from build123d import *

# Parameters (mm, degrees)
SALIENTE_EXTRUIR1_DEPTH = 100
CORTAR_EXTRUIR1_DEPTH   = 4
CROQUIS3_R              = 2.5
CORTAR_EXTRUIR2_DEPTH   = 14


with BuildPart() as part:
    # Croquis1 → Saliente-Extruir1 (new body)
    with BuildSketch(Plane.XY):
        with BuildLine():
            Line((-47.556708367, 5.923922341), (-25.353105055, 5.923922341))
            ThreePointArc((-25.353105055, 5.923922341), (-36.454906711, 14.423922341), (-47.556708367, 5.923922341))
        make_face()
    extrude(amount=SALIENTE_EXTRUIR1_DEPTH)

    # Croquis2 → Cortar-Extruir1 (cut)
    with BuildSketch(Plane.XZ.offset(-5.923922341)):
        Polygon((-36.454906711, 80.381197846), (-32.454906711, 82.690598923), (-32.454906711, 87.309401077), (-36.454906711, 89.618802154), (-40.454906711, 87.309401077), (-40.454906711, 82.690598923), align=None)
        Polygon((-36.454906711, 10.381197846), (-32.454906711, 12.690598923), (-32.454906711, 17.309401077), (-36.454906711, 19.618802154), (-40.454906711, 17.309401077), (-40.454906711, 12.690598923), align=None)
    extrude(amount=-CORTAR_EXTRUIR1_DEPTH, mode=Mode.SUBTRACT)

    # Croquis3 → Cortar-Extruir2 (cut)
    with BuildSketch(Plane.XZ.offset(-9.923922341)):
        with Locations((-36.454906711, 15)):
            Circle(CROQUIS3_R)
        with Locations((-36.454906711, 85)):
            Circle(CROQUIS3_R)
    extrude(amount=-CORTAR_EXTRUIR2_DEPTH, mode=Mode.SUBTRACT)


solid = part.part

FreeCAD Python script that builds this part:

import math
import FreeCAD as App
import Part
import Sketcher
from FreeCAD import Vector
Q = App.Units.Quantity


def add_polygon(sketch, points):
    """Adds a closed chain of lines whose ends are joined by coincident constraints."""
    first, n = sketch.GeometryCount, len(points)
    for a, b in zip(points, points[1:] + points[:1]):
        sketch.addGeometry(Part.LineSegment(App.Vector(*a, 0), App.Vector(*b, 0)), False)
    for i in range(n):
        sketch.addConstraint(Sketcher.Constraint("Coincident", first + i, 2, first + (i + 1) % n, 1))

doc = App.newDocument("Part")
params = doc.addObject("Spreadsheet::Sheet", "Params")
for row, (alias, value) in enumerate([
    ("sketch1_radius", "11.5 mm"),
    ("pad1_length", "100 mm"),
    ("pocket1_length", "4 mm"),
    ("sketch3_diameter", "5 mm"),
    ("pocket2_length", "14 mm"),
], start=1):
    params.set(f"A{row}", alias)
    params.set(f"B{row}", "=" + value)
    params.setAlias(f"B{row}", alias)

body = doc.addObject("PartDesign::Body", "Body")

# Sketch on XY plane
sketch1 = doc.addObject("Sketcher::SketchObject", "Sketch")
body.addObject(sketch1)
sketch1.AttachmentSupport = (doc.XY_Plane, [""])
sketch1.MapMode = "FlatFace"
sketch1.addGeometry([
    Part.LineSegment(Vector(-48, 6, 0), Vector(-25, 6, 0)),
    Part.ArcOfCircle(Part.Circle(Vector(-36, 3, 0), Vector(0, 0, 1), 12), math.radians(15), math.radians(165)),
], False)
sketch1.addConstraint([
    Sketcher.Constraint("Coincident", 0, 1, 1, 2),
    Sketcher.Constraint("Coincident", 1, 1, 0, 2),
    Sketcher.Constraint("Horizontal", 0),
    Sketcher.Constraint("Radius", 1, Q("11.5 mm")),
    Sketcher.Constraint("DistanceY", 1, 3, 0, 1, Q("3 mm")),
    Sketcher.Constraint("DistanceX", 0, 1, -1, 1, Q("47.556708 mm")),
    Sketcher.Constraint("DistanceY", -1, 1, 1, 3, Q("2.923922 mm")),
])
sketch1.setExpression("Constraints[3]", "Params.sketch1_radius")
pad1 = doc.addObject("PartDesign::Pad", "Pad")
body.addObject(pad1)
pad1.Profile = sketch1
pad1.setExpression("Length", "Params.pad1_length")

# Sketch on XZ plane
sketch2 = doc.addObject("Sketcher::SketchObject", "Sketch001")
body.addObject(sketch2)
sketch2.AttachmentSupport = (doc.XZ_Plane, [""])
sketch2.MapMode = "FlatFace"
sketch2.AttachmentOffset = App.Placement(Vector(0, 0, -5.923922), App.Rotation())
add_polygon(sketch2, [(-36.5, 80.4), (-32.5, 82.7), (-32.5, 87.3), (-36.5, 89.6), (-40.5, 87.3), (-40.5, 82.7)])  # lines 0-5
add_polygon(sketch2, [(-36.5, 10.4), (-32.5, 12.7), (-32.5, 17.3), (-36.5, 19.6), (-40.5, 17.3), (-40.5, 12.7)])  # lines 6-11
sketch2.addConstraint([
    Sketcher.Constraint("Vertical", 1),
    Sketcher.Constraint("Vertical", 4),
    Sketcher.Constraint("Vertical", 7),
    Sketcher.Constraint("Vertical", 10),
    Sketcher.Constraint("Parallel", 0, 3),
    Sketcher.Constraint("Parallel", 2, 5),
    Sketcher.Constraint("Parallel", 3, 6),
    Sketcher.Constraint("Parallel", 5, 8),
    Sketcher.Constraint("Parallel", 6, 9),
    Sketcher.Constraint("Parallel", 8, 11),
    Sketcher.Constraint("Horizontal", 1, 2, 3, 2),
    Sketcher.Constraint("Horizontal", 0, 2, 4, 2),
    Sketcher.Constraint("Horizontal", 7, 2, 9, 2),
    Sketcher.Constraint("Horizontal", 6, 2, 10, 2),
    Sketcher.Constraint("Vertical", 2, 2, 5, 2),
    Sketcher.Constraint("Vertical", 1, 2, 6, 2),
    Sketcher.Constraint("Vertical", 5, 2, 8, 2),
    Sketcher.Constraint("Equal", 4, 7),
    Sketcher.Constraint("Angle", 0, Q("30 deg")),
    Sketcher.Constraint("DistanceX", 2, 2, 1, 2, Q("4 mm")),
    Sketcher.Constraint("DistanceY", 6, 2, 0, 2, Q("70 mm")),
    Sketcher.Constraint("DistanceY", -1, 1, 0, 2, Q("82.690599 mm")),
    Sketcher.Constraint("DistanceY", -1, 1, 1, 2, Q("87.309401 mm")),
    Sketcher.Constraint("DistanceX", 0, 2, -1, 1, Q("32.454907 mm")),
])
pocket1 = doc.addObject("PartDesign::Pocket", "Pocket")
body.addObject(pocket1)
pocket1.Profile = sketch2
pocket1.setExpression("Length", "Params.pocket1_length")

# Sketch on XZ plane
sketch3 = doc.addObject("Sketcher::SketchObject", "Sketch002")
body.addObject(sketch3)
sketch3.AttachmentSupport = (doc.XZ_Plane, [""])
sketch3.MapMode = "FlatFace"
sketch3.AttachmentOffset = App.Placement(Vector(0, 0, -9.923922), App.Rotation())
sketch3.addGeometry([
    Part.Circle(Vector(-36.5, 15, 0), Vector(0, 0, 1), 2.5),
    Part.Circle(Vector(-36.5, 85, 0), Vector(0, 0, 1), 2.5),
], False)
sketch3.addConstraint([
    Sketcher.Constraint("Equal", 0, 1),
    Sketcher.Constraint("Vertical", 0, 3, 1, 3),
    Sketcher.Constraint("Diameter", 0, Q("5 mm")),
    Sketcher.Constraint("DistanceY", -1, 1, 0, 3, Q("15 mm")),
    Sketcher.Constraint("DistanceY", -1, 1, 1, 3, Q("85 mm")),
    Sketcher.Constraint("DistanceX", 0, 3, -1, 1, Q("36.454907 mm")),
])
sketch3.setExpression("Constraints[2]", "Params.sketch3_diameter")
pocket2 = doc.addObject("PartDesign::Pocket", "Pocket001")
body.addObject(pocket2)
pocket2.Profile = sketch3
pocket2.setExpression("Length", "Params.pocket2_length")

doc.recompute()
